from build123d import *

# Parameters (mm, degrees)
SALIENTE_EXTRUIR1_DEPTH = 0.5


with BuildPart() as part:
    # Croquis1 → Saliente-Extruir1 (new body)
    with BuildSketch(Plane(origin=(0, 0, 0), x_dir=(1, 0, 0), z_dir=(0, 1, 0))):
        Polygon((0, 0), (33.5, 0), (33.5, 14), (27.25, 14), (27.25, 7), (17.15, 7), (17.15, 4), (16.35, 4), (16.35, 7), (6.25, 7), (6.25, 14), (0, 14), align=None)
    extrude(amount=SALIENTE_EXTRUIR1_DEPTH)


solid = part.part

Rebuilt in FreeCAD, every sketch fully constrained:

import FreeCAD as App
import Part
import Sketcher
Q = App.Units.Quantity


def add_polygon(sketch, points):
    """Adds a closed chain of lines whose ends are joined by coincident constraints."""
    first, n = sketch.GeometryCount, len(points)
    for a, b in zip(points, points[1:] + points[:1]):
        sketch.addGeometry(Part.LineSegment(App.Vector(*a, 0), App.Vector(*b, 0)), False)
    for i in range(n):
        sketch.addConstraint(Sketcher.Constraint("Coincident", first + i, 2, first + (i + 1) % n, 1))

doc = App.newDocument("Part")
body = doc.addObject("PartDesign::Body", "Body")

# Sketch on XZ plane
sketch1 = body.newObject("Sketcher::SketchObject", "Sketch")
sketch1.AttachmentSupport = (doc.getObject("XZ_Plane"), [""])
sketch1.MapMode = "FlatFace"
add_polygon(sketch1, [(0, 0), (33.5, 0), (33.5, -14), (27.2, -14), (27.2, -7), (17.1, -7), (17.1, -4), (16.4, -4), (16.4, -7), (6.2, -7), (6.2, -14), (0, -14)])  # lines 0-11
sketch1.addConstraint([
    Sketcher.Constraint("Horizontal", 0),
    Sketcher.Constraint("Vertical", 1),
    Sketcher.Constraint("Horizontal", 2),
    Sketcher.Constraint("Vertical", 3),
    Sketcher.Constraint("Horizontal", 4),
    Sketcher.Constraint("Vertical", 5),
    Sketcher.Constraint("Horizontal", 6),
    Sketcher.Constraint("Vertical", 7),
    Sketcher.Constraint("Horizontal", 8),
    Sketcher.Constraint("Vertical", 9),
    Sketcher.Constraint("Horizontal", 10),
    Sketcher.Constraint("Vertical", 11),
    Sketcher.Constraint("Coincident", 11, 2, -1, 1),
    Sketcher.Constraint("Horizontal", 4, 2, 7, 2),
    Sketcher.Constraint("Horizontal", 2, 2, 9, 2),
    Sketcher.Constraint("Equal", 4, 8),
    Sketcher.Constraint("Equal", 2, 10),
    Sketcher.Constraint("DistanceY", 1, 2, 1, 1, Q("14 mm")),
    Sketcher.Constraint("DistanceY", 3, 1, 3, 2, Q("7 mm")),
    Sketcher.Constraint("DistanceY", 5, 1, 5, 2, Q("3 mm")),
    Sketcher.Constraint("DistanceX", 0, 1, 0, 2, Q("33.5 mm")),
    Sketcher.Constraint("DistanceX", 4, 2, 4, 1, Q("10.1 mm")),
    Sketcher.Constraint("DistanceX", 6, 2, 6, 1, Q("0.8 mm")),
])
pad1 = body.newObject("PartDesign::Pad", "Pad")
pad1.Profile = sketch1
pad1.Length = 0.5
pad1.Reversed = True

doc.recompute()
